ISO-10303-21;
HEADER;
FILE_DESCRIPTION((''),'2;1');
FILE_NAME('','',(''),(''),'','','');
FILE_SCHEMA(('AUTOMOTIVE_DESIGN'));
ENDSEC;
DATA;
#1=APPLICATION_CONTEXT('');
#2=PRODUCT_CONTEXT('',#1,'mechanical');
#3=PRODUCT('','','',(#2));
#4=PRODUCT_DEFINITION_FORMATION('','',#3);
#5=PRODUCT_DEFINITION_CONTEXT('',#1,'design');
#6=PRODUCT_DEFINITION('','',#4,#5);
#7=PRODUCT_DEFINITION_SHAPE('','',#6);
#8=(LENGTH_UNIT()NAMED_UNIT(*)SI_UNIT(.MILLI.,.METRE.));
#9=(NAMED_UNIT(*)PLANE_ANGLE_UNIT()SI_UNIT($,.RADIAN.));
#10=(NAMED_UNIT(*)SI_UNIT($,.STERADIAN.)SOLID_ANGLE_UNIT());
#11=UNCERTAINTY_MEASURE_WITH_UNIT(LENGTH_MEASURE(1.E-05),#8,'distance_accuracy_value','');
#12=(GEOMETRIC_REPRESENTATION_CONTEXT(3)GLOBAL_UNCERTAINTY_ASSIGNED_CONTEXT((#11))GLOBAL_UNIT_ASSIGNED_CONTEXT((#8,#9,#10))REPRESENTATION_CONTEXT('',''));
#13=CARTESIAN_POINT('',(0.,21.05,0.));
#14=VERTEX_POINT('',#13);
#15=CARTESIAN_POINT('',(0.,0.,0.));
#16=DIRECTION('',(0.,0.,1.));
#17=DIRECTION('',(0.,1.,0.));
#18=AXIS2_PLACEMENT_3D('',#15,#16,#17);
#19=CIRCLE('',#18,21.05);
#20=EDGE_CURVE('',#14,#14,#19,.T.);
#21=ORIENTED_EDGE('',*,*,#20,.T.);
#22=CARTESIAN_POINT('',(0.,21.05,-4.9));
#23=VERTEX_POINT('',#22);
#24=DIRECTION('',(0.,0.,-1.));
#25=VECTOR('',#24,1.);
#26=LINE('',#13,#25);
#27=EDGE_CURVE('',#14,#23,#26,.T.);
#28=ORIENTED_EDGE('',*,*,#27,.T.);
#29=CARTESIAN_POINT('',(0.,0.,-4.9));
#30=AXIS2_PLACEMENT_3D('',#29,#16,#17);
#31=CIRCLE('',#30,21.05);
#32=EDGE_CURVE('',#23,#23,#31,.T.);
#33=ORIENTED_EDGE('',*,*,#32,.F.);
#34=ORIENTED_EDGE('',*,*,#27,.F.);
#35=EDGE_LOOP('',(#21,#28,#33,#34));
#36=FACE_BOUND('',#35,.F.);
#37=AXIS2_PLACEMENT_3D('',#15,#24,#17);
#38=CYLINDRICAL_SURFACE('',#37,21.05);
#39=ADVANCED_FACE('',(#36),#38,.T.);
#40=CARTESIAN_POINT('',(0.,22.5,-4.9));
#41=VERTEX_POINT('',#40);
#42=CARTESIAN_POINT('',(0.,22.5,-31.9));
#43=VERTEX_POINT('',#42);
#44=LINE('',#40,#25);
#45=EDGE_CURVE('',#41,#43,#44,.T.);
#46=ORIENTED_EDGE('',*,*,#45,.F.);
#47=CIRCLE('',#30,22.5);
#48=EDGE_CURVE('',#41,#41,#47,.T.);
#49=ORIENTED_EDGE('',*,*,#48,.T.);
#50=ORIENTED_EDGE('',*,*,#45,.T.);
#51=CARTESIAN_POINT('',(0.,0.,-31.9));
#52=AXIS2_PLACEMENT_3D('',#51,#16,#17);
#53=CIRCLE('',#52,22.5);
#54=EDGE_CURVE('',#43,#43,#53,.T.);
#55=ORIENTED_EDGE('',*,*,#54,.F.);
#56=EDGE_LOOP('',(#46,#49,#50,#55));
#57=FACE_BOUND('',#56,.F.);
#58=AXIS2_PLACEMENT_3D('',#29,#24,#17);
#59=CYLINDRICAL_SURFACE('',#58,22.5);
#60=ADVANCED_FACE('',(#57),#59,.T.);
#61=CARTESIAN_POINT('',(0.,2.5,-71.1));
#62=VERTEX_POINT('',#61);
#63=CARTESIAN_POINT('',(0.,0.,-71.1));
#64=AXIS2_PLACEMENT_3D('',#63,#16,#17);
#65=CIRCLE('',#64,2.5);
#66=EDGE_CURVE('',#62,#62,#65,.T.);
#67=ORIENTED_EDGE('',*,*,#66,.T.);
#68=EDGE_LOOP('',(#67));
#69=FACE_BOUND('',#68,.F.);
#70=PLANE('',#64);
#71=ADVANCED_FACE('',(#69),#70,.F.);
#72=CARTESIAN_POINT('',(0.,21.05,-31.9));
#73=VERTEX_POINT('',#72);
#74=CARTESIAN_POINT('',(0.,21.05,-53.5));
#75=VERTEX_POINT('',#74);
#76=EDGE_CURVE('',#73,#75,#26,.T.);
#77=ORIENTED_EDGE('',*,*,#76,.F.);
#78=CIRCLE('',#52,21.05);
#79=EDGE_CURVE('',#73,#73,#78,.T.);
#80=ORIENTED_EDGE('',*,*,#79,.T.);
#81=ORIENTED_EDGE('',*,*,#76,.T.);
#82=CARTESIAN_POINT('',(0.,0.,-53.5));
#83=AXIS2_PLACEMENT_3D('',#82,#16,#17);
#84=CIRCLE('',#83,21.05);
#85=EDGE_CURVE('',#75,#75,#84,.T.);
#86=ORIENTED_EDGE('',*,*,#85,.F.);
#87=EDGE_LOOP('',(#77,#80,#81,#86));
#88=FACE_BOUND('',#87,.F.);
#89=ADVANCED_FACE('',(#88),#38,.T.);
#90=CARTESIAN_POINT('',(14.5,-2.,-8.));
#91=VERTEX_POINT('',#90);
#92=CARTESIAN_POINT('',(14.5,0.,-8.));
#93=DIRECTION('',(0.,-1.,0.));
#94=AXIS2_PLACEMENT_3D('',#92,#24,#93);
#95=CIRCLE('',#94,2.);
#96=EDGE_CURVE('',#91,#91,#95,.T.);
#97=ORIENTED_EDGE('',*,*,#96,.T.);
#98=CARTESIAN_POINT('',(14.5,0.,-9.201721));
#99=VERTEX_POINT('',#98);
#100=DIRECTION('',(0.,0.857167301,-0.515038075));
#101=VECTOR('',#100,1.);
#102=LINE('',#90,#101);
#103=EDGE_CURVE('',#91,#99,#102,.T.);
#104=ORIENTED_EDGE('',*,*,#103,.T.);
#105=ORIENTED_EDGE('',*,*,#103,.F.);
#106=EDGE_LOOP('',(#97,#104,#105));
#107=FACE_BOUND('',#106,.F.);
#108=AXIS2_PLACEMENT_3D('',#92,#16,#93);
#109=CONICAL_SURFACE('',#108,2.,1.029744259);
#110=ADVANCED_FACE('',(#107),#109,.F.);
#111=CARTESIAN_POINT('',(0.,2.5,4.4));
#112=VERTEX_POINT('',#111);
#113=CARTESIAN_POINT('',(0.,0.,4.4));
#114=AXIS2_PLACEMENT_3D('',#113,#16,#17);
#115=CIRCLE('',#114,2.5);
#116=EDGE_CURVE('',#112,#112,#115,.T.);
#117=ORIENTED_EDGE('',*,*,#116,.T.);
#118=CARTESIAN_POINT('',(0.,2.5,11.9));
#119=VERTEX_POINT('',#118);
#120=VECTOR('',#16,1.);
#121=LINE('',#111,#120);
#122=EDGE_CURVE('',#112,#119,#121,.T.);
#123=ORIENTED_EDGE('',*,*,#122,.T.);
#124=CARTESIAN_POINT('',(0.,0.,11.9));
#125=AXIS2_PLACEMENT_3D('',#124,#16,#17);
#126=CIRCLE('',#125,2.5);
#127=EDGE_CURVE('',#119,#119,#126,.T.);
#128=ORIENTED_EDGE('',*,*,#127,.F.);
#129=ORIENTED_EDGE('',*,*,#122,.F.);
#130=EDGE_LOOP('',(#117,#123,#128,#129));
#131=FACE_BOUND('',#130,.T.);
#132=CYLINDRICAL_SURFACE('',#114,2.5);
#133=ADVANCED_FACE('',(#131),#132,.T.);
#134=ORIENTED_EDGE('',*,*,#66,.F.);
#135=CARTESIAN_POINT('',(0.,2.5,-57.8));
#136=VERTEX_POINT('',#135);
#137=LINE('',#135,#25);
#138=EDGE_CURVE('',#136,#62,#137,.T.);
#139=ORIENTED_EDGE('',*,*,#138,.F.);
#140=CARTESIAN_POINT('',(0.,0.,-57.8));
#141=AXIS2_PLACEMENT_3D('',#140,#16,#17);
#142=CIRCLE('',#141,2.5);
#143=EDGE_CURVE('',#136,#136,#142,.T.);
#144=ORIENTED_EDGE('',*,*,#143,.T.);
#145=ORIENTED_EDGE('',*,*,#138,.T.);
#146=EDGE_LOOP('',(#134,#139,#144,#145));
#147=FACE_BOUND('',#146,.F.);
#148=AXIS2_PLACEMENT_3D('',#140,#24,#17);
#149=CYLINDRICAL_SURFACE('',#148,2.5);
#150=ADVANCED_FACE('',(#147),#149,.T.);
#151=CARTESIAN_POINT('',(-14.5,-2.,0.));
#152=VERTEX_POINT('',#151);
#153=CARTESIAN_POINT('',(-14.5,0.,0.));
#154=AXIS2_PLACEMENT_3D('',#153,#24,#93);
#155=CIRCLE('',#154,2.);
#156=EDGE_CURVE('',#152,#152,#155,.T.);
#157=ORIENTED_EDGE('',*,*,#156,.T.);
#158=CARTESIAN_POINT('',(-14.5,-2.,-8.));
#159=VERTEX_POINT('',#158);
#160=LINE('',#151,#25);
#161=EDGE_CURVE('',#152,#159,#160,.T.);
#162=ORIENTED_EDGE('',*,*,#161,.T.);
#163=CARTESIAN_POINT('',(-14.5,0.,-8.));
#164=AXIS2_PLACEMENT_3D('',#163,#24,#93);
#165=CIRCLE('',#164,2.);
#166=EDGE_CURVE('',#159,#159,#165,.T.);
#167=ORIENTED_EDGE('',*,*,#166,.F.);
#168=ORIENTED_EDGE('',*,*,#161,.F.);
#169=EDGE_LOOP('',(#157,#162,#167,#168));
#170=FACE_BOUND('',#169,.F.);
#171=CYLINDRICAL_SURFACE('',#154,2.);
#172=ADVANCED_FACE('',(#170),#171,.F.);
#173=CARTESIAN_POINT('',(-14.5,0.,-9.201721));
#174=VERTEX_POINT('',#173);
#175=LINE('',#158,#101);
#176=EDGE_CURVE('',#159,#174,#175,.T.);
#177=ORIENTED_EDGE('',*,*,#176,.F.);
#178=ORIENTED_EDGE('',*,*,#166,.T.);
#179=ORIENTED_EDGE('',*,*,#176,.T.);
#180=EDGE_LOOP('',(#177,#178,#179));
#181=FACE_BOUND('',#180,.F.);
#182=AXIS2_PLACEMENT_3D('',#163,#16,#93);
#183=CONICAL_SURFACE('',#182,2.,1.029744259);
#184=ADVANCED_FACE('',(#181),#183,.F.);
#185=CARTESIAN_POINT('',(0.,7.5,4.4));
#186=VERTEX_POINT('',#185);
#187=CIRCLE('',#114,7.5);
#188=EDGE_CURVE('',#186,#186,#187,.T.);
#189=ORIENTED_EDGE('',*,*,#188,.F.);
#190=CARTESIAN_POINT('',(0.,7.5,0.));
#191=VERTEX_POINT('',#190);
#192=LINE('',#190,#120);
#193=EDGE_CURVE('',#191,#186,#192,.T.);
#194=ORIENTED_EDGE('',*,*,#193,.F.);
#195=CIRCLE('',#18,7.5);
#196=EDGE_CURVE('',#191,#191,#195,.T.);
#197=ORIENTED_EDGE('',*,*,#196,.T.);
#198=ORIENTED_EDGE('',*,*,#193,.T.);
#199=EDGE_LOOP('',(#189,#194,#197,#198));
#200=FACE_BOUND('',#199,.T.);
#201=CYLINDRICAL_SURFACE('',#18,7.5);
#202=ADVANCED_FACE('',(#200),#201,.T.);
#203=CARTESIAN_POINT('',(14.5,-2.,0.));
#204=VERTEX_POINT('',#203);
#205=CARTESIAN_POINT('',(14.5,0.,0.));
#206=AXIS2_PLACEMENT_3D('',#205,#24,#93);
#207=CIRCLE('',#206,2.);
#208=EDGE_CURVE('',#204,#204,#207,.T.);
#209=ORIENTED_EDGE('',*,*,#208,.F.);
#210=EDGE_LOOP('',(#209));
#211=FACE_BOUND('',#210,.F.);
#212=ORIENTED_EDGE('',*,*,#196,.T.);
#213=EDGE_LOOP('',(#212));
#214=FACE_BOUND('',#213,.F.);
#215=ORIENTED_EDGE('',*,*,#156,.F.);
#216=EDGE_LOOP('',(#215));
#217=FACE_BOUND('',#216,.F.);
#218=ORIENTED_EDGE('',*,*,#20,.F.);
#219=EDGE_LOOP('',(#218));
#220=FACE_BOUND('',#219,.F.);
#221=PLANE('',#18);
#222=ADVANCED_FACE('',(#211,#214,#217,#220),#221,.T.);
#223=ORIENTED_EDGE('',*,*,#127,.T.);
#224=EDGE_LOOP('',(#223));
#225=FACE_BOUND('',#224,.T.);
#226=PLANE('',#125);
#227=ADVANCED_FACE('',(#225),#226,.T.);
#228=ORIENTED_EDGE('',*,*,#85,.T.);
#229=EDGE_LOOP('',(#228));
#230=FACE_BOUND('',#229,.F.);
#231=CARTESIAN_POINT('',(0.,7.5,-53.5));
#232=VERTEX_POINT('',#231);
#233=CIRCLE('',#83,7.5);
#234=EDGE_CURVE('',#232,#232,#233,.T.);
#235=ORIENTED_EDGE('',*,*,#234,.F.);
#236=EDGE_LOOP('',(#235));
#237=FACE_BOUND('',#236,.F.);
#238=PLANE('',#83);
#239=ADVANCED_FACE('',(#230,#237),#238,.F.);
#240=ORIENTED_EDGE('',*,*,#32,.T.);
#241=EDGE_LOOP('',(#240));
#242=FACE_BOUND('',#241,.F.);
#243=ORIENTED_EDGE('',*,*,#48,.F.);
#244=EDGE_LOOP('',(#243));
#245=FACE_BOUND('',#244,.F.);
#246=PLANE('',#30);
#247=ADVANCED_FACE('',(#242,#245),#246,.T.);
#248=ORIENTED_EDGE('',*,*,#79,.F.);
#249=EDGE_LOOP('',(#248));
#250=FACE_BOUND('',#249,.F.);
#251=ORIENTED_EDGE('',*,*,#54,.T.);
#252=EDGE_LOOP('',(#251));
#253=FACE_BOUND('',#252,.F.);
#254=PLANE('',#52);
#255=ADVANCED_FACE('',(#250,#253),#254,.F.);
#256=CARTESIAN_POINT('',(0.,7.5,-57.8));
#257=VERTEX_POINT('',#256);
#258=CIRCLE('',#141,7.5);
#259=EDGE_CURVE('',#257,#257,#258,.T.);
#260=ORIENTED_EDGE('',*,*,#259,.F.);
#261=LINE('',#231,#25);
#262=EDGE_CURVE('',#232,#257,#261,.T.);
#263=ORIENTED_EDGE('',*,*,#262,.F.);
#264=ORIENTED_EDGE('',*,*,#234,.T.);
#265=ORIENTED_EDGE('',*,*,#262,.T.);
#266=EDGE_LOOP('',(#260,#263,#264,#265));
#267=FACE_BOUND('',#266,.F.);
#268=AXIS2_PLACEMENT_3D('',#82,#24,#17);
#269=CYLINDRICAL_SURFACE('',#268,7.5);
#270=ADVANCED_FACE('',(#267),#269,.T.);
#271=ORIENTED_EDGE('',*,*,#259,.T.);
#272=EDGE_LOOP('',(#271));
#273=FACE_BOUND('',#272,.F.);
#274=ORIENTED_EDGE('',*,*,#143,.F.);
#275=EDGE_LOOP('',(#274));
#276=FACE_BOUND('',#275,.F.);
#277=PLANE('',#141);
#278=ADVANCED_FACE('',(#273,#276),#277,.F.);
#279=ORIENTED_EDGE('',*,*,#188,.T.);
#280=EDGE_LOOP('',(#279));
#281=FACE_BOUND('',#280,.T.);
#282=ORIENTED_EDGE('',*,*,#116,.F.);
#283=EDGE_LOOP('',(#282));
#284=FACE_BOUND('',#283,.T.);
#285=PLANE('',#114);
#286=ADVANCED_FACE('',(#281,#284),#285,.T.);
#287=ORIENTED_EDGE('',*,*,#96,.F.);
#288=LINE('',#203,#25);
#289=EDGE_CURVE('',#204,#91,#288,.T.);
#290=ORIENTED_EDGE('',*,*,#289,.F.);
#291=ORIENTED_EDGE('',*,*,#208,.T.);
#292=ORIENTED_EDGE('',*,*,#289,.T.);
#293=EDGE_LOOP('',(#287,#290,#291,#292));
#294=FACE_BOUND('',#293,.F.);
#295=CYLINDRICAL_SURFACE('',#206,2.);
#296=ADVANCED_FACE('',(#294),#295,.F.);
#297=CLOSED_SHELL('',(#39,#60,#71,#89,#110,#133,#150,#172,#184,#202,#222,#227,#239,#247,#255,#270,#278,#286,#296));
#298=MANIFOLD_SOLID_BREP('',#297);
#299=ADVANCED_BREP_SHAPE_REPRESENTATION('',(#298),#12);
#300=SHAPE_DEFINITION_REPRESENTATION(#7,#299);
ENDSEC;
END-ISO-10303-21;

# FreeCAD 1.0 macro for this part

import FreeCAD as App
import Part
import Sketcher
from FreeCAD import Vector


def add_polygon(sketch, points):
    """Adds a closed chain of lines whose ends are joined by coincident constraints."""
    first, n = sketch.GeometryCount, len(points)
    for a, b in zip(points, points[1:] + points[:1]):
        sketch.addGeometry(Part.LineSegment(App.Vector(*a, 0), App.Vector(*b, 0)), False)
    for i in range(n):
        sketch.addConstraint(Sketcher.Constraint("Coincident", first + i, 2, first + (i + 1) % n, 1))

doc = App.newDocument("Part")
params = doc.addObject("Spreadsheet::Sheet", "Params")
for row, (alias, value) in enumerate([
    ("sketch1_height", "27 mm"),
    ("sketch1_width", "2.5 mm"),
    ("sketch1_height2", "4.3 mm"),
    ("sketch1_height3", "4.9 mm"),
    ("sketch1_height4", "4.4 mm"),
    ("revolution_angle", "360 deg"),
    ("sketch2_diameter", "4 mm"),
    ("hole_diameter", "4 mm"),
    ("hole_depth", "8 mm"),
], start=1):
    params.set(f"A{row}", alias)
    params.set(f"B{row}", "=" + value)
    params.setAlias(f"B{row}", alias)

body = doc.addObject("PartDesign::Body", "Body")

sketch1 = doc.addObject("Sketcher::SketchObject", "Sketch")
body.addObject(sketch1)
sketch1.AttachmentSupport = (doc.YZ_Plane, [""])
sketch1.MapMode = "FlatFace"
add_polygon(sketch1, [(0, -71.1), (2.5, -71.1), (2.5, -57.8), (7.5, -57.8), (7.5, -53.5), (21.1, -53.5), (21.1, -31.9), (22.5, -31.9), (22.5, -4.9), (21.1, -4.9), (21.1, 0), (7.5, 0), (7.5, 4.4), (2.5, 4.4), (2.5, 11.9), (0, 11.9)])
sketch1.addConstraint(Sketcher.Constraint("Horizontal", 0))
sketch1.addConstraint(Sketcher.Constraint("Vertical", 1))
sketch1.addConstraint(Sketcher.Constraint("Horizontal", 2))
sketch1.addConstraint(Sketcher.Constraint("Vertical", 3))
sketch1.addConstraint(Sketcher.Constraint("Horizontal", 4))
sketch1.addConstraint(Sketcher.Constraint("Vertical", 5))
sketch1.addConstraint(Sketcher.Constraint("Horizontal", 6))
sketch1.addConstraint(Sketcher.Constraint("Vertical", 7))
sketch1.addConstraint(Sketcher.Constraint("Horizontal", 8))
sketch1.addConstraint(Sketcher.Constraint("Vertical", 9))
sketch1.addConstraint(Sketcher.Constraint("Horizontal", 10))
sketch1.addConstraint(Sketcher.Constraint("Vertical", 11))
sketch1.addConstraint(Sketcher.Constraint("Horizontal", 12))
sketch1.addConstraint(Sketcher.Constraint("Vertical", 13))
sketch1.addConstraint(Sketcher.Constraint("Horizontal", 14))
sketch1.addConstraint(Sketcher.Constraint("Vertical", 15))
sketch1.addConstraint(Sketcher.Constraint("PointOnObject", 9, 2, -1))
sketch1.addConstraint(Sketcher.Constraint("PointOnObject", 14, 2, -2))
sketch1.addConstraint(Sketcher.Constraint("Vertical", 5, 2, 8, 2))
sketch1.addConstraint(Sketcher.Constraint("Vertical", 3, 2, 10, 2))
sketch1.addConstraint(Sketcher.Constraint("Vertical", 1, 2, 12, 2))
sketch1.addConstraint(Sketcher.Constraint("DistanceY", 7, 1, 7, 2, 27.0))
sketch1.addConstraint(Sketcher.Constraint("DistanceX", 0, 1, 0, 2, 2.5))
sketch1.addConstraint(Sketcher.Constraint("DistanceY", 3, 1, 3, 2, 4.3))
sketch1.addConstraint(Sketcher.Constraint("DistanceY", 9, 1, 9, 2, 4.9))
sketch1.addConstraint(Sketcher.Constraint("DistanceY", 11, 1, 11, 2, 4.4))
sketch1.addConstraint(Sketcher.Constraint("DistanceY", 13, 1, 13, 2, 7.5))
sketch1.addConstraint(Sketcher.Constraint("DistanceX", -1, 1, 2, 2, 7.5))
sketch1.addConstraint(Sketcher.Constraint("DistanceY", 3, 2, -1, 1, 53.5))
sketch1.addConstraint(Sketcher.Constraint("DistanceX", -1, 1, 6, 2, 22.5))
sketch1.addConstraint(Sketcher.Constraint("DistanceY", 0, 2, 3, 2, 17.6))
sketch1.addConstraint(Sketcher.Constraint("DistanceX", -1, 1, 4, 2, 21.05))
sketch1.setExpression("Constraints[37]", "Params.sketch1_height")
sketch1.setExpression("Constraints[38]", "Params.sketch1_width")
sketch1.setExpression("Constraints[39]", "Params.sketch1_height2")
sketch1.setExpression("Constraints[40]", "Params.sketch1_height3")
sketch1.setExpression("Constraints[41]", "Params.sketch1_height4")
revolution = doc.addObject("PartDesign::Revolution", "Revolution")
body.addObject(revolution)
revolution.Profile = sketch1
revolution.ReferenceAxis = (sketch1, ["V_Axis"])
revolution.setExpression("Angle", "Params.revolution_angle")

sketch2 = doc.addObject("Sketcher::SketchObject", "Sketch001")
body.addObject(sketch2)
sketch2.AttachmentSupport = (doc.XY_Plane, [""])
sketch2.MapMode = "FlatFace"
sketch2.addGeometry(Part.Circle(Vector(14.5, 0, 0), Vector(0, 0, 1), 2), False)
sketch2.addGeometry(Part.Circle(Vector(-14.5, 0, 0), Vector(0, 0, 1), 2), False)
sketch2.addConstraint(Sketcher.Constraint("Equal", 0, 1))
sketch2.addConstraint(Sketcher.Constraint("Symmetric", 0, 3, 1, 3, -1, 1))
sketch2.addConstraint(Sketcher.Constraint("PointOnObject", 0, 3, -1))
sketch2.addConstraint(Sketcher.Constraint("Diameter", 0, 4.0))
sketch2.addConstraint(Sketcher.Constraint("DistanceX", 1, 3, 0, 3, 29.0))
sketch2.setExpression("Constraints[3]", "Params.sketch2_diameter")
doc.recompute()
hole = doc.addObject("PartDesign::Hole", "Hole")
body.addObject(hole)
hole.Profile = sketch2
hole.ThreadType = "None"
hole.setExpression("Diameter", "Params.hole_diameter")
hole.DepthType = "Dimension"
hole.setExpression("Depth", "Params.hole_depth")
hole.DrillPoint = "Angled"
hole.DrillPointAngle = 118

doc.recompute()
